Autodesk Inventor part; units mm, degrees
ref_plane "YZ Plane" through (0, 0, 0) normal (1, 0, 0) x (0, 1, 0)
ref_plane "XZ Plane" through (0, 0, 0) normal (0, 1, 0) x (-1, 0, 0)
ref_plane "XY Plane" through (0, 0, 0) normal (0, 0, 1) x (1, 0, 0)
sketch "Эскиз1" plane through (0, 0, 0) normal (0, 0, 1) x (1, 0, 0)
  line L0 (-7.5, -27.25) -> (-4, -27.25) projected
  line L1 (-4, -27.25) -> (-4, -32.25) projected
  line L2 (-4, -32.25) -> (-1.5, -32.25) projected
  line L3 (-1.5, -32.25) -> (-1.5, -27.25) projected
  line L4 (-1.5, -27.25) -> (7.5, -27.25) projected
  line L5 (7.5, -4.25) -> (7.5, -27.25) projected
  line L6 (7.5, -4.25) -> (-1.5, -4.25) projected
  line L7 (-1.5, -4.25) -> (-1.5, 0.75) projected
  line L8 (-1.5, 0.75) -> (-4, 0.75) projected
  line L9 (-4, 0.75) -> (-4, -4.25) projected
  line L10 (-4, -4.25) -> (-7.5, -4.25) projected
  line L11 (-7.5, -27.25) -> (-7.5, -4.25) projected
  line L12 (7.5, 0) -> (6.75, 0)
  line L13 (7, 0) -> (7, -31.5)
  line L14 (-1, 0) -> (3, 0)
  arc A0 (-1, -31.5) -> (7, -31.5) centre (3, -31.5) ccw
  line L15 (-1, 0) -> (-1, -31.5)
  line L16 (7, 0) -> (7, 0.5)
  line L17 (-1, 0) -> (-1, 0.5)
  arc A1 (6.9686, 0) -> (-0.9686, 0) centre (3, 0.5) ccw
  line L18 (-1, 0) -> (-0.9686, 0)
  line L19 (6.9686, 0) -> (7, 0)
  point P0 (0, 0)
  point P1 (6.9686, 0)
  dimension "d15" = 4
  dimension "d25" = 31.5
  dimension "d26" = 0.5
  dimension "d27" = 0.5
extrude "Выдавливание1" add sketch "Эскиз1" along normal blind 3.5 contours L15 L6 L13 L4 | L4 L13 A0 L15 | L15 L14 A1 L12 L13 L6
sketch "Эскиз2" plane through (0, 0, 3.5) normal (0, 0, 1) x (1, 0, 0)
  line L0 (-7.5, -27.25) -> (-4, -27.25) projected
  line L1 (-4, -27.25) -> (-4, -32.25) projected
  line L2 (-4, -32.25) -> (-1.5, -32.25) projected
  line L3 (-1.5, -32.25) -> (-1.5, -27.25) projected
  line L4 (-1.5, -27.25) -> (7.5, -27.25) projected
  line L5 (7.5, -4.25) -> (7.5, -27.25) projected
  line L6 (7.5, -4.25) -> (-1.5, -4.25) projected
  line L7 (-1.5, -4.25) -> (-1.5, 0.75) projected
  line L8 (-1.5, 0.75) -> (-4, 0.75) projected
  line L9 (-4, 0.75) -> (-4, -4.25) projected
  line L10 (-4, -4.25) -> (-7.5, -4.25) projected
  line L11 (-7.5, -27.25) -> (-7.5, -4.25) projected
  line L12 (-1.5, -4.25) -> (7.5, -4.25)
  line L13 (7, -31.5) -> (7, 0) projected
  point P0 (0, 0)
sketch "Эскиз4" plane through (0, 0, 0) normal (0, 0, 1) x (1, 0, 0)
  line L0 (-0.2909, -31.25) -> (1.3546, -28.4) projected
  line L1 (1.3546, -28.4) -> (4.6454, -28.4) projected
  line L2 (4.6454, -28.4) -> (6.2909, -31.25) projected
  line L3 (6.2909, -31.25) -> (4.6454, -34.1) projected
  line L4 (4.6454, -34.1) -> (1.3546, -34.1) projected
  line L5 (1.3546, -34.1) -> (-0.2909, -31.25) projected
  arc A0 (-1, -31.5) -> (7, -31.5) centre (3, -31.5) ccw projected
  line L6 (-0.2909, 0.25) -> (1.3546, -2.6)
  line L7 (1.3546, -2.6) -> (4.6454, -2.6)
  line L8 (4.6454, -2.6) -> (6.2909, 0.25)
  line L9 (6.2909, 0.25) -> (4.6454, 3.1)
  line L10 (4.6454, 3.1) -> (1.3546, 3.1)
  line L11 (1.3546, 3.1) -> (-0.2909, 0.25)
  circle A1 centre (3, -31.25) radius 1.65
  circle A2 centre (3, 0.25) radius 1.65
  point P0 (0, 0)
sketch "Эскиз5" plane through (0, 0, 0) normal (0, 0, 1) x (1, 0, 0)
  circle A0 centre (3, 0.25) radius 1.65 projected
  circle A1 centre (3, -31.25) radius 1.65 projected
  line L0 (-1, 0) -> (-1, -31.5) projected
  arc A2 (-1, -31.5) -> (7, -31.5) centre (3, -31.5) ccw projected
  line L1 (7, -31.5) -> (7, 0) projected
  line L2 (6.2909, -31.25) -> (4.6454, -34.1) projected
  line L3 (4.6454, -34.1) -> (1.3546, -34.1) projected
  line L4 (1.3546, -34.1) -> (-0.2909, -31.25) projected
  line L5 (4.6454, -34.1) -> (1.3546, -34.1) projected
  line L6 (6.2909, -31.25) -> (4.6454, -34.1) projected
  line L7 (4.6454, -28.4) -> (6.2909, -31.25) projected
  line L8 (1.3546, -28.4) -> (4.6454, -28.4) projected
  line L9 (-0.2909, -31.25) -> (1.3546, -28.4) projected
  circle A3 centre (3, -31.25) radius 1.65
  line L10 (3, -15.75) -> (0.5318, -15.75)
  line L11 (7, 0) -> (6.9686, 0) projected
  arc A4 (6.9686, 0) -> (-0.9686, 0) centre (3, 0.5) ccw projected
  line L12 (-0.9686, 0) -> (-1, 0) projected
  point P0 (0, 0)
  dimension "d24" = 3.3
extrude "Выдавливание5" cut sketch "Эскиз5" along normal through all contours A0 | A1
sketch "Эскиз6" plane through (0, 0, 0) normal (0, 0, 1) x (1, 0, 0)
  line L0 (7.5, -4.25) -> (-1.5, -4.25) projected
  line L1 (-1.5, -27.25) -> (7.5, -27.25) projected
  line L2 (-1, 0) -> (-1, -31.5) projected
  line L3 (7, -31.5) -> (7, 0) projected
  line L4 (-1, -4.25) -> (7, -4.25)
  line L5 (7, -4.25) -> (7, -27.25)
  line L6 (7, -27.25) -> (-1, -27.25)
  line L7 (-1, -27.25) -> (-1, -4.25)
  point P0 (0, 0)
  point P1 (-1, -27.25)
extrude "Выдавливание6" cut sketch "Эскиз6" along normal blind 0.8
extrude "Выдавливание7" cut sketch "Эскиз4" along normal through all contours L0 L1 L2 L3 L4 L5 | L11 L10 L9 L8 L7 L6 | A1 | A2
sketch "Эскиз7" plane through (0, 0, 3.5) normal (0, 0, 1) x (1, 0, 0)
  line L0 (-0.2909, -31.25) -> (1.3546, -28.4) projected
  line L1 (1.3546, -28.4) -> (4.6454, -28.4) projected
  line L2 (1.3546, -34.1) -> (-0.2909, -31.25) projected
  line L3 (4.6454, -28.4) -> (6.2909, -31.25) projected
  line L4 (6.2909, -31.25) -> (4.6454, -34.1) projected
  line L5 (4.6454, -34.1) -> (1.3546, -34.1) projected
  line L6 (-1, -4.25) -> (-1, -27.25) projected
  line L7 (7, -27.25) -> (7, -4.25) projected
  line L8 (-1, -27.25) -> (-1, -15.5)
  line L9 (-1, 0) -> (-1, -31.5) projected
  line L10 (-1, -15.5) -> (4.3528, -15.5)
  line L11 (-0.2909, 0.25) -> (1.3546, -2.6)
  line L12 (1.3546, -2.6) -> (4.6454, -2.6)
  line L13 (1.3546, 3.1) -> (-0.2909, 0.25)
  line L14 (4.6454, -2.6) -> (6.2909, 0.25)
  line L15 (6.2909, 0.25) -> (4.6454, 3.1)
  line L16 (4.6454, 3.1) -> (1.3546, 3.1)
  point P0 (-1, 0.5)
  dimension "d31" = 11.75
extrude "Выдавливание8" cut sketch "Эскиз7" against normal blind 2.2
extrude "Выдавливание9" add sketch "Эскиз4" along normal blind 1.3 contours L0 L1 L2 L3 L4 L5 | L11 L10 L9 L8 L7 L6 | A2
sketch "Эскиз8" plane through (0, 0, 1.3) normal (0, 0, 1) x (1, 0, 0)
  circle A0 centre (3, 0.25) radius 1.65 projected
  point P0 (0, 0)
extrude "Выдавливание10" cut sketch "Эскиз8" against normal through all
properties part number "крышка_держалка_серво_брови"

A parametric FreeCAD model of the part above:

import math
import FreeCAD as App
import Part
import Sketcher
from FreeCAD import Vector
Q = App.Units.Quantity

doc = App.newDocument("Part")
params = doc.addObject("Spreadsheet::Sheet", "Params")
for row, (alias, value) in enumerate([
    ("sketch1_radius", "4 mm"),
    ("sketch1_height", "31.5 mm"),
    ("pad1_length", "3.5 mm"),
    ("sketch2_diameter", "3.3 mm"),
    ("sketch3_width", "8 mm"),
    ("sketch3_height", "23 mm"),
    ("pocket2_length", "0.8 mm"),
    ("pocket4_length", "2.2 mm"),
    ("sketch6_diameter", "3.3 mm"),
    ("pad2_length", "1.3 mm"),
    ("sketch7_diameter", "3.3 mm"),
], start=1):
    params.set(f"A{row}", alias)
    params.set(f"B{row}", "=" + value)
    params.setAlias(f"B{row}", alias)

body = doc.addObject("PartDesign::Body", "Body")

sketch1 = doc.addObject("Sketcher::SketchObject", "Sketch")
body.addObject(sketch1)
sketch1.AttachmentSupport = (doc.XY_Plane, [""])
sketch1.MapMode = "FlatFace"
sketch1.addGeometry([
    Part.ArcOfCircle(Part.Circle(Vector(3, -31.5, 0), Vector(0, 0, 1), 4), math.radians(180), math.radians(360)),
    Part.LineSegment(Vector(7, -31.5, 0), Vector(7, 0, 0)),
    Part.LineSegment(Vector(7, 0, 0), Vector(6.969, 0, 0)),
    Part.ArcOfCircle(Part.Circle(Vector(3, 0.5, 0), Vector(0, 0, 1), 4), math.radians(-7), math.radians(187)),
    Part.LineSegment(Vector(-0.969, 0, 0), Vector(-1, 0, 0)),
    Part.LineSegment(Vector(-1, 0, 0), Vector(-1, -31.5, 0)),
], False)
sketch1.addConstraint([
    Sketcher.Constraint("Tangent", 0, 2, 1, 1),
    Sketcher.Constraint("Coincident", 1, 2, 2, 1),
    Sketcher.Constraint("Coincident", 2, 2, 3, 1),
    Sketcher.Constraint("Coincident", 3, 2, 4, 1),
    Sketcher.Constraint("Coincident", 4, 2, 5, 1),
    Sketcher.Constraint("Tangent", 5, 2, 0, 1),
    Sketcher.Constraint("Vertical", 1),
    Sketcher.Constraint("Horizontal", 2),
    Sketcher.Constraint("Horizontal", 4),
    Sketcher.Constraint("Vertical", 5),
    Sketcher.Constraint("Equal", 0, 3),
    Sketcher.Constraint("PointOnObject", 1, 2, -1),
    Sketcher.Constraint("PointOnObject", 3, 2, -1),
    Sketcher.Constraint("Vertical", 0, 3, 3, 3),
    Sketcher.Constraint("Radius", 0, Q("4 mm")),
    Sketcher.Constraint("DistanceY", 1, 1, 1, 2, Q("31.5 mm")),
    Sketcher.Constraint("DistanceY", -1, 1, 3, 3, Q("0.5 mm")),
    Sketcher.Constraint("DistanceX", -1, 1, 0, 3, Q("3 mm")),
])
sketch1.setExpression("Constraints[14]", "Params.sketch1_radius")
sketch1.setExpression("Constraints[15]", "Params.sketch1_height")
pad1 = doc.addObject("PartDesign::Pad", "Pad")
body.addObject(pad1)
pad1.Profile = sketch1
pad1.setExpression("Length", "Params.pad1_length")

sketch2 = doc.addObject("Sketcher::SketchObject", "Sketch001")
body.addObject(sketch2)
sketch2.AttachmentSupport = (doc.XY_Plane, [""])
sketch2.MapMode = "FlatFace"
sketch2.addGeometry([
    Part.Circle(Vector(3, 0.2, 0), Vector(0, 0, 1), 1.6),
    Part.Circle(Vector(3, -31.2, 0), Vector(0, 0, 1), 1.6),
], False)
sketch2.addConstraint([
    Sketcher.Constraint("Equal", 0, 1),
    Sketcher.Constraint("Vertical", 0, 3, 1, 3),
    Sketcher.Constraint("Diameter", 0, Q("3.3 mm")),
    Sketcher.Constraint("DistanceX", -1, 1, 0, 3, Q("3 mm")),
    Sketcher.Constraint("DistanceY", 1, 3, 0, 3, Q("31.5 mm")),
    Sketcher.Constraint("DistanceY", -1, 1, 0, 3, Q("0.25 mm")),
])
sketch2.setExpression("Constraints[2]", "Params.sketch2_diameter")
pocket1 = doc.addObject("PartDesign::Pocket", "Pocket")
body.addObject(pocket1)
pocket1.Profile = sketch2
pocket1.Type = "ThroughAll"
pocket1.Reversed = True

sketch3 = doc.addObject("Sketcher::SketchObject", "Sketch002")
body.addObject(sketch3)
sketch3.AttachmentSupport = (doc.XY_Plane, [""])
sketch3.MapMode = "FlatFace"
sketch3.addGeometry([
    Part.LineSegment(Vector(7, -27, 0), Vector(7, -4, 0)),
    Part.LineSegment(Vector(7, -4, 0), Vector(-1, -4, 0)),
    Part.LineSegment(Vector(-1, -4, 0), Vector(-1, -27, 0)),
    Part.LineSegment(Vector(-1, -27, 0), Vector(7, -27, 0)),
], False)
sketch3.addConstraint([
    Sketcher.Constraint("Coincident", 0, 2, 1, 1),
    Sketcher.Constraint("Coincident", 1, 2, 2, 1),
    Sketcher.Constraint("Coincident", 2, 2, 3, 1),
    Sketcher.Constraint("Coincident", 3, 2, 0, 1),
    Sketcher.Constraint("Vertical", 0),
    Sketcher.Constraint("Horizontal", 1),
    Sketcher.Constraint("Vertical", 2),
    Sketcher.Constraint("Horizontal", 3),
    Sketcher.Constraint("DistanceX", 1, 2, 1, 1, Q("8 mm")),
    Sketcher.Constraint("DistanceY", 0, 1, 0, 2, Q("23 mm")),
    Sketcher.Constraint("DistanceX", -1, 1, 0, 2, Q("7 mm")),
    Sketcher.Constraint("DistanceY", 0, 2, -1, 1, Q("4.25 mm")),
])
sketch3.setExpression("Constraints[8]", "Params.sketch3_width")
sketch3.setExpression("Constraints[9]", "Params.sketch3_height")
pocket2 = doc.addObject("PartDesign::Pocket", "Pocket001")
body.addObject(pocket2)
pocket2.Profile = sketch3
pocket2.setExpression("Length", "Params.pocket2_length")
pocket2.Reversed = True

sketch4 = doc.addObject("Sketcher::SketchObject", "Sketch003")
body.addObject(sketch4)
sketch4.AttachmentSupport = (doc.XY_Plane, [""])
sketch4.MapMode = "FlatFace"
sketch4.addGeometry([
    Part.LineSegment(Vector(1.4, -28.4, 0), Vector(-0.3, -31.2, 0)),
    Part.LineSegment(Vector(-0.3, -31.2, 0), Vector(1.4, -34.1, 0)),
    Part.LineSegment(Vector(1.4, -34.1, 0), Vector(4.6, -34.1, 0)),
    Part.LineSegment(Vector(4.6, -34.1, 0), Vector(6.3, -31.2, 0)),
    Part.LineSegment(Vector(6.3, -31.2, 0), Vector(4.6, -28.4, 0)),
    Part.LineSegment(Vector(4.6, -28.4, 0), Vector(1.4, -28.4, 0)),
    Part.LineSegment(Vector(1.4, 3.1, 0), Vector(-0.3, 0.2, 0)),
    Part.LineSegment(Vector(-0.3, 0.2, 0), Vector(1.4, -2.6, 0)),
    Part.LineSegment(Vector(1.4, -2.6, 0), Vector(4.6, -2.6, 0)),
    Part.LineSegment(Vector(4.6, -2.6, 0), Vector(6.3, 0.2, 0)),
    Part.LineSegment(Vector(6.3, 0.2, 0), Vector(4.6, 3.1, 0)),
    Part.LineSegment(Vector(4.6, 3.1, 0), Vector(1.4, 3.1, 0)),
], False)
sketch4.addConstraint([
    Sketcher.Constraint("Coincident", 0, 2, 1, 1),
    Sketcher.Constraint("Coincident", 1, 2, 2, 1),
    Sketcher.Constraint("Coincident", 2, 2, 3, 1),
    Sketcher.Constraint("Coincident", 3, 2, 4, 1),
    Sketcher.Constraint("Coincident", 4, 2, 5, 1),
    Sketcher.Constraint("Coincident", 5, 2, 0, 1),
    Sketcher.Constraint("Coincident", 6, 2, 7, 1),
    Sketcher.Constraint("Coincident", 7, 2, 8, 1),
    Sketcher.Constraint("Coincident", 8, 2, 9, 1),
    Sketcher.Constraint("Coincident", 9, 2, 10, 1),
    Sketcher.Constraint("Coincident", 10, 2, 11, 1),
    Sketcher.Constraint("Coincident", 11, 2, 6, 1),
    Sketcher.Constraint("Horizontal", 2),
    Sketcher.Constraint("Horizontal", 5),
    Sketcher.Constraint("Horizontal", 8),
    Sketcher.Constraint("Horizontal", 11),
    Sketcher.Constraint("Parallel", 0, 3),
    Sketcher.Constraint("Parallel", 1, 4),
    Sketcher.Constraint("Parallel", 3, 6),
    Sketcher.Constraint("Parallel", 4, 7),
    Sketcher.Constraint("Parallel", 6, 9),
    Sketcher.Constraint("Parallel", 7, 10),
    Sketcher.Constraint("Horizontal", 0, 2, 3, 2),
    Sketcher.Constraint("Horizontal", 6, 2, 9, 2),
    Sketcher.Constraint("Vertical", 2, 2, 4, 2),
    Sketcher.Constraint("Vertical", 1, 2, 5, 2),
    Sketcher.Constraint("Vertical", 0, 2, 6, 2),
    Sketcher.Constraint("Vertical", 5, 2, 7, 2),
    Sketcher.Constraint("Vertical", 4, 2, 8, 2),
    Sketcher.Constraint("Vertical", 8, 2, 10, 2),
    Sketcher.Constraint("Angle", 0, Q("-120.0008 deg")),
    Sketcher.Constraint("DistanceY", 1, 2, -1, 1, Q("34.1 mm")),
    Sketcher.Constraint("DistanceY", 4, 2, -1, 1, Q("28.4 mm")),
    Sketcher.Constraint("DistanceY", 7, 2, -1, 1, Q("2.6 mm")),
    Sketcher.Constraint("DistanceX", 2, 1, 2, 2, Q("3.2908 mm")),
    Sketcher.Constraint("DistanceX", 0, 2, -1, 1, Q("0.291 mm")),
])
pocket3 = doc.addObject("PartDesign::Pocket", "Pocket002")
body.addObject(pocket3)
pocket3.Profile = sketch4
pocket3.Type = "ThroughAll"
pocket3.Reversed = True

sketch5 = doc.addObject("Sketcher::SketchObject", "Sketch004")
body.addObject(sketch5)
sketch5.AttachmentSupport = (doc.XY_Plane, [""])
sketch5.MapMode = "FlatFace"
sketch5.AttachmentOffset = App.Placement(Vector(0, 0, 3.5), App.Rotation())
sketch5.addGeometry([
    Part.LineSegment(Vector(1.4, -28.4, 0), Vector(-0.3, -31.2, 0)),
    Part.LineSegment(Vector(-0.3, -31.2, 0), Vector(1.4, -34.1, 0)),
    Part.LineSegment(Vector(1.4, -34.1, 0), Vector(4.6, -34.1, 0)),
    Part.LineSegment(Vector(4.6, -34.1, 0), Vector(6.3, -31.2, 0)),
    Part.LineSegment(Vector(6.3, -31.2, 0), Vector(4.6, -28.4, 0)),
    Part.LineSegment(Vector(4.6, -28.4, 0), Vector(1.4, -28.4, 0)),
    Part.LineSegment(Vector(1.4, 3.1, 0), Vector(-0.3, 0.2, 0)),
    Part.LineSegment(Vector(-0.3, 0.2, 0), Vector(1.4, -2.6, 0)),
    Part.LineSegment(Vector(1.4, -2.6, 0), Vector(4.6, -2.6, 0)),
    Part.LineSegment(Vector(4.6, -2.6, 0), Vector(6.3, 0.2, 0)),
    Part.LineSegment(Vector(6.3, 0.2, 0), Vector(4.6, 3.1, 0)),
    Part.LineSegment(Vector(4.6, 3.1, 0), Vector(1.4, 3.1, 0)),
], False)
sketch5.addConstraint([
    Sketcher.Constraint("Coincident", 0, 2, 1, 1),
    Sketcher.Constraint("Coincident", 1, 2, 2, 1),
    Sketcher.Constraint("Coincident", 2, 2, 3, 1),
    Sketcher.Constraint("Coincident", 3, 2, 4, 1),
    Sketcher.Constraint("Coincident", 4, 2, 5, 1),
    Sketcher.Constraint("Coincident", 5, 2, 0, 1),
    Sketcher.Constraint("Coincident", 6, 2, 7, 1),
    Sketcher.Constraint("Coincident", 7, 2, 8, 1),
    Sketcher.Constraint("Coincident", 8, 2, 9, 1),
    Sketcher.Constraint("Coincident", 9, 2, 10, 1),
    Sketcher.Constraint("Coincident", 10, 2, 11, 1),
    Sketcher.Constraint("Coincident", 11, 2, 6, 1),
    Sketcher.Constraint("Horizontal", 2),
    Sketcher.Constraint("Horizontal", 5),
    Sketcher.Constraint("Horizontal", 8),
    Sketcher.Constraint("Horizontal", 11),
    Sketcher.Constraint("Parallel", 0, 3),
    Sketcher.Constraint("Parallel", 1, 4),
    Sketcher.Constraint("Parallel", 3, 6),
    Sketcher.Constraint("Parallel", 4, 7),
    Sketcher.Constraint("Parallel", 6, 9),
    Sketcher.Constraint("Parallel", 7, 10),
    Sketcher.Constraint("Horizontal", 0, 2, 3, 2),
    Sketcher.Constraint("Horizontal", 6, 2, 9, 2),
    Sketcher.Constraint("Vertical", 2, 2, 4, 2),
    Sketcher.Constraint("Vertical", 1, 2, 5, 2),
    Sketcher.Constraint("Vertical", 0, 2, 6, 2),
    Sketcher.Constraint("Vertical", 5, 2, 7, 2),
    Sketcher.Constraint("Vertical", 4, 2, 8, 2),
    Sketcher.Constraint("Vertical", 8, 2, 10, 2),
    Sketcher.Constraint("Angle", 0, Q("-120.0008 deg")),
    Sketcher.Constraint("DistanceY", 1, 2, -1, 1, Q("34.1 mm")),
    Sketcher.Constraint("DistanceY", 4, 2, -1, 1, Q("28.4 mm")),
    Sketcher.Constraint("DistanceY", 7, 2, -1, 1, Q("2.6 mm")),
    Sketcher.Constraint("DistanceX", 2, 1, 2, 2, Q("3.2908 mm")),
    Sketcher.Constraint("DistanceX", 0, 2, -1, 1, Q("0.291 mm")),
])
pocket4 = doc.addObject("PartDesign::Pocket", "Pocket003")
body.addObject(pocket4)
pocket4.Profile = sketch5
pocket4.setExpression("Length", "Params.pocket4_length")

sketch6 = doc.addObject("Sketcher::SketchObject", "Sketch005")
body.addObject(sketch6)
sketch6.AttachmentSupport = (doc.XY_Plane, [""])
sketch6.MapMode = "FlatFace"
sketch6.addGeometry([
    Part.LineSegment(Vector(1.4, -28.4, 0), Vector(-0.3, -31.2, 0)),
    Part.LineSegment(Vector(-0.3, -31.2, 0), Vector(1.4, -34.1, 0)),
    Part.LineSegment(Vector(1.4, -34.1, 0), Vector(4.6, -34.1, 0)),
    Part.LineSegment(Vector(4.6, -34.1, 0), Vector(6.3, -31.2, 0)),
    Part.LineSegment(Vector(6.3, -31.2, 0), Vector(4.6, -28.4, 0)),
    Part.LineSegment(Vector(4.6, -28.4, 0), Vector(1.4, -28.4, 0)),
    Part.Circle(Vector(3, -31.2, 0), Vector(0, 0, 1), 1.6),
    Part.LineSegment(Vector(1.4, 3.1, 0), Vector(-0.3, 0.2, 0)),
    Part.LineSegment(Vector(-0.3, 0.2, 0), Vector(1.4, -2.6, 0)),
    Part.LineSegment(Vector(1.4, -2.6, 0), Vector(4.6, -2.6, 0)),
    Part.LineSegment(Vector(4.6, -2.6, 0), Vector(6.3, 0.2, 0)),
    Part.LineSegment(Vector(6.3, 0.2, 0), Vector(4.6, 3.1, 0)),
    Part.LineSegment(Vector(4.6, 3.1, 0), Vector(1.4, 3.1, 0)),
], False)
sketch6.addConstraint([
    Sketcher.Constraint("Coincident", 0, 2, 1, 1),
    Sketcher.Constraint("Coincident", 1, 2, 2, 1),
    Sketcher.Constraint("Coincident", 2, 2, 3, 1),
    Sketcher.Constraint("Coincident", 3, 2, 4, 1),
    Sketcher.Constraint("Coincident", 4, 2, 5, 1),
    Sketcher.Constraint("Coincident", 5, 2, 0, 1),
    Sketcher.Constraint("Coincident", 7, 2, 8, 1),
    Sketcher.Constraint("Coincident", 8, 2, 9, 1),
    Sketcher.Constraint("Coincident", 9, 2, 10, 1),
    Sketcher.Constraint("Coincident", 10, 2, 11, 1),
    Sketcher.Constraint("Coincident", 11, 2, 12, 1),
    Sketcher.Constraint("Coincident", 12, 2, 7, 1),
    Sketcher.Constraint("Horizontal", 2),
    Sketcher.Constraint("Horizontal", 5),
    Sketcher.Constraint("Horizontal", 9),
    Sketcher.Constraint("Horizontal", 12),
    Sketcher.Constraint("Parallel", 0, 3),
    Sketcher.Constraint("Parallel", 1, 4),
    Sketcher.Constraint("Parallel", 3, 7),
    Sketcher.Constraint("Parallel", 4, 8),
    Sketcher.Constraint("Parallel", 7, 10),
    Sketcher.Constraint("Parallel", 8, 11),
    Sketcher.Constraint("Horizontal", 6, 3, 0, 2),
    Sketcher.Constraint("Horizontal", 0, 2, 3, 2),
    Sketcher.Constraint("Horizontal", 7, 2, 10, 2),
    Sketcher.Constraint("Vertical", 2, 2, 4, 2),
    Sketcher.Constraint("Vertical", 1, 2, 5, 2),
    Sketcher.Constraint("Vertical", 0, 2, 7, 2),
    Sketcher.Constraint("Vertical", 5, 2, 8, 2),
    Sketcher.Constraint("Vertical", 4, 2, 9, 2),
    Sketcher.Constraint("Vertical", 9, 2, 11, 2),
    Sketcher.Constraint("Diameter", 6, Q("3.3 mm")),
    Sketcher.Constraint("Angle", 0, Q("-120.0008 deg")),
    Sketcher.Constraint("DistanceX", -1, 1, 6, 3, Q("3 mm")),
    Sketcher.Constraint("DistanceY", 1, 2, -1, 1, Q("34.1 mm")),
    Sketcher.Constraint("DistanceY", 4, 2, -1, 1, Q("28.4 mm")),
    Sketcher.Constraint("DistanceY", 8, 2, -1, 1, Q("2.6 mm")),
    Sketcher.Constraint("DistanceX", 2, 1, 2, 2, Q("3.2908 mm")),
    Sketcher.Constraint("DistanceX", 0, 2, -1, 1, Q("0.291 mm")),
])
sketch6.setExpression("Constraints[31]", "Params.sketch6_diameter")
pad2 = doc.addObject("PartDesign::Pad", "Pad001")
body.addObject(pad2)
pad2.Profile = sketch6
pad2.setExpression("Length", "Params.pad2_length")

sketch7 = doc.addObject("Sketcher::SketchObject", "Sketch006")
body.addObject(sketch7)
sketch7.AttachmentSupport = (doc.XY_Plane, [""])
sketch7.MapMode = "FlatFace"
sketch7.AttachmentOffset = App.Placement(Vector(0, 0, 1.3), App.Rotation())
sketch7.addGeometry(Part.Circle(Vector(3, 0.2, 0), Vector(0, 0, 1), 1.6), False)
sketch7.addConstraint([
    Sketcher.Constraint("Diameter", 0, Q("3.3 mm")),
    Sketcher.Constraint("DistanceX", -1, 1, 0, 3, Q("3 mm")),
    Sketcher.Constraint("DistanceY", -1, 1, 0, 3, Q("0.25 mm")),
])
sketch7.setExpression("Constraints[0]", "Params.sketch7_diameter")
pocket5 = doc.addObject("PartDesign::Pocket", "Pocket004")
body.addObject(pocket5)
pocket5.Profile = sketch7
pocket5.Type = "ThroughAll"

doc.recompute()
